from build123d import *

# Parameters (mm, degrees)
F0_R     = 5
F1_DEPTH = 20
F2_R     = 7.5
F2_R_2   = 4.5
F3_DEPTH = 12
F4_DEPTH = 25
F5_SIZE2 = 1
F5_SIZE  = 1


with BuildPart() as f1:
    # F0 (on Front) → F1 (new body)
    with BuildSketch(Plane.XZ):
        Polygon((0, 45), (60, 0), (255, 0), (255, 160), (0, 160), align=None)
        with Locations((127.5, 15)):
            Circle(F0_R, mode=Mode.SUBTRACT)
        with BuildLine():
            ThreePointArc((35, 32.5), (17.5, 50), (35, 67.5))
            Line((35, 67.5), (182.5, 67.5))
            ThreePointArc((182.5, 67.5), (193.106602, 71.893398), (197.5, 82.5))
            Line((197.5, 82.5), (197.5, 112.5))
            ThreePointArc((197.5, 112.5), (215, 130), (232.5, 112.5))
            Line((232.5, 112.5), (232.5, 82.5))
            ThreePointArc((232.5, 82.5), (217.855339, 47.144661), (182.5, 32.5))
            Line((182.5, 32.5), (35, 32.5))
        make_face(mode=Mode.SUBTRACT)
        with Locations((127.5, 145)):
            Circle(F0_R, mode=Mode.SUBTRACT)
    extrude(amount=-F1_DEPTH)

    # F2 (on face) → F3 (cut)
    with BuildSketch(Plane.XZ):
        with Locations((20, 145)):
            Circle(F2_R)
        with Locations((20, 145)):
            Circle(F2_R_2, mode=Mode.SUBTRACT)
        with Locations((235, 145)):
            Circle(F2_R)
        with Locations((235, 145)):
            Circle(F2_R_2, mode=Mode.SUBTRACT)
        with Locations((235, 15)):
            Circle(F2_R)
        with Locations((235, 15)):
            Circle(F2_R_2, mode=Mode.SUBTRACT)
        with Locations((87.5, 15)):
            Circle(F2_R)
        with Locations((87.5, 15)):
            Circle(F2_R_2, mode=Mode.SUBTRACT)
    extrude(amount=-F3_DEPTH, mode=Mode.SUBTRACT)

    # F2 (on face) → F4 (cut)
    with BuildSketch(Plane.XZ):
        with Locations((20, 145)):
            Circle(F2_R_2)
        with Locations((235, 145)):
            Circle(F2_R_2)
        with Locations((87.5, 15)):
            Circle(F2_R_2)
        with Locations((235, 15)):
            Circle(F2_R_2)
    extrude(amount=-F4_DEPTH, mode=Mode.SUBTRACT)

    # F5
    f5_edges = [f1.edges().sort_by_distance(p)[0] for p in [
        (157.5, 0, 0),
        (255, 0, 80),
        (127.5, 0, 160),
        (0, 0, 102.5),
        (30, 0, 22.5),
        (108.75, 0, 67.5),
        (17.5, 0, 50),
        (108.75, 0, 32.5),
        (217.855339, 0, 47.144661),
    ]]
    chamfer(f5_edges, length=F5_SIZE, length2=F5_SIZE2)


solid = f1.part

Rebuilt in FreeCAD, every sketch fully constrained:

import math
import FreeCAD as App
import Part
import Sketcher
Q = App.Units.Quantity


def edges_at(feature, points):
    """Names of the edges that pass closest to the given points."""
    edges = feature.Shape.Edges
    near = lambda p: min(range(len(edges)), key=lambda i: edges[i].distToShape(Part.Vertex(*p))[0])
    return sorted({f"Edge{near(p) + 1}" for p in points})


def add_polygon(sketch, points):
    """Adds a closed chain of lines whose ends are joined by coincident constraints."""
    first, n = sketch.GeometryCount, len(points)
    for a, b in zip(points, points[1:] + points[:1]):
        sketch.addGeometry(Part.LineSegment(App.Vector(*a, 0), App.Vector(*b, 0)), False)
    for i in range(n):
        sketch.addConstraint(Sketcher.Constraint("Coincident", first + i, 2, first + (i + 1) % n, 1))

doc = App.newDocument("Part")
body = doc.addObject("PartDesign::Body", "Body")

# Sketch on XZ plane
sketch1 = doc.addObject("Sketcher::SketchObject", "Sketch")
body.addObject(sketch1)
sketch1.AttachmentSupport = (doc.XZ_Plane, [""])
sketch1.MapMode = "FlatFace"
add_polygon(sketch1, [(0, 45), (60, 0), (255, 0), (255, 160), (0, 160)])  # lines 0-4
sketch1.addGeometry(Part.Circle(App.Vector(128, 15, 0), App.Vector(0, 0, 1), 5), False)  # 5
sketch1.addGeometry(Part.LineSegment(App.Vector(182, 32, 0), App.Vector(35, 32, 0)), False)  # 6
sketch1.addGeometry(Part.ArcOfCircle(Part.Circle(App.Vector(35, 50, 0), App.Vector(0, 0, 1), 18), math.radians(90), math.radians(270)), False)  # 7
sketch1.addGeometry(Part.LineSegment(App.Vector(35, 68, 0), App.Vector(182, 68, 0)), False)  # 8
sketch1.addGeometry(Part.ArcOfCircle(Part.Circle(App.Vector(183, 82, 0), App.Vector(0, 0, 1), 15), math.radians(-90), math.radians(0)), False)  # 9
sketch1.addGeometry(Part.LineSegment(App.Vector(198, 82, 0), App.Vector(198, 112, 0)), False)  # 10
sketch1.addGeometry(Part.ArcOfCircle(Part.Circle(App.Vector(215, 112, 0), App.Vector(0, 0, 1), 18), math.radians(0), math.radians(180)), False)  # 11
sketch1.addGeometry(Part.LineSegment(App.Vector(232, 112, 0), App.Vector(232, 82, 0)), False)  # 12
sketch1.addGeometry(Part.ArcOfCircle(Part.Circle(App.Vector(182, 83, 0), App.Vector(0, 0, 1), 50), math.radians(-90), math.radians(0)), False)  # 13
sketch1.addGeometry(Part.Circle(App.Vector(128, 145, 0), App.Vector(0, 0, 1), 5), False)  # 14
sketch1.addConstraint(Sketcher.Constraint("Tangent", 6, 2, 7, 2))
sketch1.addConstraint(Sketcher.Constraint("Tangent", 7, 1, 8, 1))
sketch1.addConstraint(Sketcher.Constraint("Tangent", 8, 2, 9, 1))
sketch1.addConstraint(Sketcher.Constraint("Tangent", 9, 2, 10, 1))
sketch1.addConstraint(Sketcher.Constraint("Tangent", 10, 2, 11, 2))
sketch1.addConstraint(Sketcher.Constraint("Tangent", 11, 1, 12, 1))
sketch1.addConstraint(Sketcher.Constraint("Tangent", 12, 2, 13, 2))
sketch1.addConstraint(Sketcher.Constraint("Tangent", 13, 1, 6, 1))
sketch1.addConstraint(Sketcher.Constraint("Horizontal", 1))
sketch1.addConstraint(Sketcher.Constraint("Vertical", 2))
sketch1.addConstraint(Sketcher.Constraint("Horizontal", 3))
sketch1.addConstraint(Sketcher.Constraint("Vertical", 4))
sketch1.addConstraint(Sketcher.Constraint("Horizontal", 6))
sketch1.addConstraint(Sketcher.Constraint("Horizontal", 8))
sketch1.addConstraint(Sketcher.Constraint("Vertical", 10))
sketch1.addConstraint(Sketcher.Constraint("Vertical", 12))
sketch1.addConstraint(Sketcher.Constraint("Coincident", 13, 3, 9, 3))
sketch1.addConstraint(Sketcher.Constraint("Equal", 5, 14))
sketch1.addConstraint(Sketcher.Constraint("PointOnObject", 0, 2, -1))
sketch1.addConstraint(Sketcher.Constraint("PointOnObject", 3, 2, -2))
sketch1.addConstraint(Sketcher.Constraint("Vertical", 5, 3, 14, 3))
sketch1.addConstraint(Sketcher.Constraint("Diameter", 5, Q("10 mm")))
sketch1.addConstraint(Sketcher.Constraint("Radius", 9, Q("14.999999 mm")))
sketch1.addConstraint(Sketcher.Constraint("Radius", 13, Q("50 mm")))
sketch1.addConstraint(Sketcher.Constraint("DistanceX", 1, 1, 1, 2, Q("195 mm")))
sketch1.addConstraint(Sketcher.Constraint("DistanceX", 3, 2, 3, 1, Q("255 mm")))
sketch1.addConstraint(Sketcher.Constraint("DistanceY", 2, 1, 2, 2, Q("160 mm")))
sketch1.addConstraint(Sketcher.Constraint("DistanceY", 4, 2, 4, 1, Q("115 mm")))
sketch1.addConstraint(Sketcher.Constraint("DistanceY", 10, 1, 10, 2, Q("30 mm")))
sketch1.addConstraint(Sketcher.Constraint("DistanceX", 6, 2, 6, 1, Q("147.5 mm")))
sketch1.addConstraint(Sketcher.Constraint("DistanceY", -1, 1, 5, 3, Q("15 mm")))
sketch1.addConstraint(Sketcher.Constraint("DistanceX", -1, 1, 7, 3, Q("35 mm")))
sketch1.addConstraint(Sketcher.Constraint("DistanceY", -1, 1, 7, 3, Q("50 mm")))
sketch1.addConstraint(Sketcher.Constraint("DistanceY", -1, 1, 14, 3, Q("145 mm")))
sketch1.addConstraint(Sketcher.Constraint("DistanceX", 5, 3, 9, 3, Q("55.000001 mm")))
pad1 = doc.addObject("PartDesign::Pad", "Pad")
body.addObject(pad1)
pad1.Profile = sketch1
pad1.Length = 20
pad1.Reversed = True

# Sketch on XZ plane
sketch2 = doc.addObject("Sketcher::SketchObject", "Sketch001")
body.addObject(sketch2)
sketch2.AttachmentSupport = (doc.XZ_Plane, [""])
sketch2.MapMode = "FlatFace"
sketch2.addGeometry(Part.Circle(App.Vector(20, 145, 0), App.Vector(0, 0, 1), 7.5), False)
sketch2.addGeometry(Part.Circle(App.Vector(20, 145, 0), App.Vector(0, 0, 1), 4.5), False)
sketch2.addGeometry(Part.Circle(App.Vector(235, 145, 0), App.Vector(0, 0, 1), 7.5), False)
sketch2.addGeometry(Part.Circle(App.Vector(235, 145, 0), App.Vector(0, 0, 1), 4.5), False)
sketch2.addGeometry(Part.Circle(App.Vector(235, 15, 0), App.Vector(0, 0, 1), 7.5), False)
sketch2.addGeometry(Part.Circle(App.Vector(235, 15, 0), App.Vector(0, 0, 1), 4.5), False)
sketch2.addGeometry(Part.Circle(App.Vector(87.5, 15, 0), App.Vector(0, 0, 1), 7.5), False)
sketch2.addGeometry(Part.Circle(App.Vector(87.5, 15, 0), App.Vector(0, 0, 1), 4.5), False)
sketch2.addConstraint(Sketcher.Constraint("Coincident", 1, 3, 0, 3))
sketch2.addConstraint(Sketcher.Constraint("Coincident", 3, 3, 2, 3))
sketch2.addConstraint(Sketcher.Constraint("Coincident", 5, 3, 4, 3))
sketch2.addConstraint(Sketcher.Constraint("Coincident", 7, 3, 6, 3))
sketch2.addConstraint(Sketcher.Constraint("Equal", 0, 2))
sketch2.addConstraint(Sketcher.Constraint("Equal", 1, 3))
sketch2.addConstraint(Sketcher.Constraint("Equal", 2, 4))
sketch2.addConstraint(Sketcher.Constraint("Equal", 3, 5))
sketch2.addConstraint(Sketcher.Constraint("Equal", 4, 6))
sketch2.addConstraint(Sketcher.Constraint("Equal", 5, 7))
sketch2.addConstraint(Sketcher.Constraint("Horizontal", 1, 3, 2, 3))
sketch2.addConstraint(Sketcher.Constraint("Horizontal", 5, 3, 6, 3))
sketch2.addConstraint(Sketcher.Constraint("Vertical", 3, 3, 4, 3))
sketch2.addConstraint(Sketcher.Constraint("Diameter", 0, Q("15 mm")))
sketch2.addConstraint(Sketcher.Constraint("Diameter", 1, Q("9 mm")))
sketch2.addConstraint(Sketcher.Constraint("DistanceX", -1, 1, 0, 3, Q("20 mm")))
sketch2.addConstraint(Sketcher.Constraint("DistanceY", -1, 1, 0, 3, Q("145 mm")))
sketch2.addConstraint(Sketcher.Constraint("DistanceX", -1, 1, 2, 3, Q("235 mm")))
sketch2.addConstraint(Sketcher.Constraint("DistanceY", -1, 1, 4, 3, Q("15 mm")))
sketch2.addConstraint(Sketcher.Constraint("DistanceX", -1, 1, 6, 3, Q("87.5 mm")))
pocket1 = doc.addObject("PartDesign::Pocket", "Pocket")
body.addObject(pocket1)
pocket1.Profile = sketch2
pocket1.Length = 12

# Sketch on XZ plane
sketch3 = doc.addObject("Sketcher::SketchObject", "Sketch002")
body.addObject(sketch3)
sketch3.AttachmentSupport = (doc.XZ_Plane, [""])
sketch3.MapMode = "FlatFace"
sketch3.addGeometry(Part.Circle(App.Vector(20, 145, 0), App.Vector(0, 0, 1), 4.5), False)
sketch3.addGeometry(Part.Circle(App.Vector(235, 145, 0), App.Vector(0, 0, 1), 4.5), False)
sketch3.addGeometry(Part.Circle(App.Vector(87.5, 15, 0), App.Vector(0, 0, 1), 4.5), False)
sketch3.addGeometry(Part.Circle(App.Vector(235, 15, 0), App.Vector(0, 0, 1), 4.5), False)
sketch3.addConstraint(Sketcher.Constraint("Equal", 0, 1))
sketch3.addConstraint(Sketcher.Constraint("Equal", 1, 2))
sketch3.addConstraint(Sketcher.Constraint("Equal", 2, 3))
sketch3.addConstraint(Sketcher.Constraint("Horizontal", 0, 3, 1, 3))
sketch3.addConstraint(Sketcher.Constraint("Horizontal", 2, 3, 3, 3))
sketch3.addConstraint(Sketcher.Constraint("Vertical", 1, 3, 3, 3))
sketch3.addConstraint(Sketcher.Constraint("Diameter", 0, Q("9 mm")))
sketch3.addConstraint(Sketcher.Constraint("DistanceX", -1, 1, 0, 3, Q("20 mm")))
sketch3.addConstraint(Sketcher.Constraint("DistanceY", -1, 1, 0, 3, Q("145 mm")))
sketch3.addConstraint(Sketcher.Constraint("DistanceX", -1, 1, 1, 3, Q("235 mm")))
sketch3.addConstraint(Sketcher.Constraint("DistanceY", -1, 1, 2, 3, Q("15 mm")))
sketch3.addConstraint(Sketcher.Constraint("DistanceX", -1, 1, 2, 3, Q("87.5 mm")))
pocket2 = doc.addObject("PartDesign::Pocket", "Pocket001")
body.addObject(pocket2)
pocket2.Profile = sketch3
pocket2.Length = 25
doc.recompute()

chamfer = doc.addObject("PartDesign::Chamfer", "Chamfer")
body.addObject(chamfer)
chamfer.Base = (pocket2, edges_at(pocket2, [
    (157.5, 0, 0),
    (255, 0, 80),
    (127.5, 0, 160),
    (0, 0, 102.5),
    (30, 0, 22.5),
    (108.75, 0, 67.5),
    (17.5, 0, 50),
    (108.75, 0, 32.5),
    (217.855, 0, 47.145),
]))
chamfer.ChamferType = "Two distances"
chamfer.Size = 1
chamfer.Size2 = 1

doc.recompute()
